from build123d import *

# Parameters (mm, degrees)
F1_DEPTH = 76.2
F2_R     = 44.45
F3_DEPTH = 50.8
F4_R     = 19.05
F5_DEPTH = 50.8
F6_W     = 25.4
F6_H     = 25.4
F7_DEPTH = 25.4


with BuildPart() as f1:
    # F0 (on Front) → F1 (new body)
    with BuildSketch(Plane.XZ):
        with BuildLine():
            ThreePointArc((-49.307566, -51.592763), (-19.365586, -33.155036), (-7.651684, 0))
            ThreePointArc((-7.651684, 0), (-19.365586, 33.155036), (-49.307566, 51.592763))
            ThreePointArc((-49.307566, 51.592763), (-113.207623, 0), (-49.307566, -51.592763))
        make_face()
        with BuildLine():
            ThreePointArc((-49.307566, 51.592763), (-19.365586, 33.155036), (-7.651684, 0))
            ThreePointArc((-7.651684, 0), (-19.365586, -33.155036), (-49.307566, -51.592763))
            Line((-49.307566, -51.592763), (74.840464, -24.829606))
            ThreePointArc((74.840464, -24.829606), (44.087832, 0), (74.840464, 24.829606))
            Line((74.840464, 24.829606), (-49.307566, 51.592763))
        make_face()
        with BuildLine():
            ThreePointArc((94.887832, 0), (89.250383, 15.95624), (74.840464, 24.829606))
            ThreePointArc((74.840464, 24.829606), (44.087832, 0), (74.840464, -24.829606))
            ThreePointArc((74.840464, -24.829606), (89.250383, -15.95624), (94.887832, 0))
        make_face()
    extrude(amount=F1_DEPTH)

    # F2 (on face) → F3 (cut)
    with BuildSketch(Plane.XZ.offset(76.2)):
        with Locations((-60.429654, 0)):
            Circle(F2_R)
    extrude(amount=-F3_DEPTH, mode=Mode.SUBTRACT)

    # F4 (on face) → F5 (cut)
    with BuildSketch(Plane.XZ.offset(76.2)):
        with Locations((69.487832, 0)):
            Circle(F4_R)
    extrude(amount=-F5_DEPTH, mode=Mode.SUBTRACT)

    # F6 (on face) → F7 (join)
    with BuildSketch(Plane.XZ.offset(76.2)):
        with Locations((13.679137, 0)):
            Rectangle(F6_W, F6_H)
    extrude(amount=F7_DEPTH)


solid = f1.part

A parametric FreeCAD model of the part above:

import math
import FreeCAD as App
import Part
import Sketcher

V = App.Vector
Q = App.Units.Quantity


def add_polygon(sketch, points):
    """Adds a closed chain of lines whose ends are joined by coincident constraints."""
    first, n = sketch.GeometryCount, len(points)
    for a, b in zip(points, points[1:] + points[:1]):
        sketch.addGeometry(Part.LineSegment(App.Vector(*a, 0), App.Vector(*b, 0)), False)
    for i in range(n):
        sketch.addConstraint(Sketcher.Constraint("Coincident", first + i, 2, first + (i + 1) % n, 1))

doc = App.newDocument("Part")
body = doc.addObject("PartDesign::Body", "Body")

# Sketch on XZ plane
sketch1 = body.newObject("Sketcher::SketchObject", "Sketch")
sketch1.AttachmentSupport = (doc.getObject("XZ_Plane"), [""])
sketch1.MapMode = "FlatFace"
sketch1.addGeometry([
    Part.ArcOfCircle(Part.Circle(V(-60.429654, 0, 0), V(0, 0, 1), 52.777969), math.radians(77.834658), math.radians(282.165342)),  # 0
    Part.LineSegment(V(-49.307566, -51.592763, 0), V(74.840464, -24.829606, 0)),  # 1
    Part.ArcOfCircle(Part.Circle(V(69.487833, -0.000001, 0), V(0, 0, 1), 25.399999), math.radians(-77.834659), math.radians(0.000002)),  # 2
    Part.ArcOfCircle(Part.Circle(V(69.487833, 0.000001, 0), V(0, 0, 1), 25.399999), math.radians(-0.000002), math.radians(77.834659)),  # 3
    Part.LineSegment(V(74.840464, 24.829606, 0), V(-49.307566, 51.592763, 0)),  # 4
], False)
sketch1.addConstraint([
    Sketcher.Constraint("Tangent", 0, 2, 1, 1),
    Sketcher.Constraint("Tangent", 1, 2, 2, 1),
    Sketcher.Constraint("Tangent", 2, 2, 3, 1),
    Sketcher.Constraint("Tangent", 3, 2, 4, 1),
    Sketcher.Constraint("Tangent", 4, 2, 0, 1),
    Sketcher.Constraint("Equal", 2, 3),
    Sketcher.Constraint("Symmetric", 1, 2, 3, 2, -1),
    Sketcher.Constraint("PointOnObject", 2, 2, -1),
    Sketcher.Constraint("Radius", 2, Q("1 in")),
    Sketcher.Constraint("Distance", 1, Q("5 in")),
    Sketcher.Constraint("Radius", 0, Q("52.777969 mm")),
    Sketcher.Constraint("DistanceX", -1, 1, 2, 2, Q("94.887832 mm")),
])
pad1 = body.newObject("PartDesign::Pad", "Pad")
pad1.Profile = sketch1
pad1.Length = Q("3 in")

# Sketch on XZ plane
sketch2 = body.newObject("Sketcher::SketchObject", "Sketch001")
sketch2.AttachmentSupport = (doc.getObject("XZ_Plane"), [""])
sketch2.MapMode = "FlatFace"
sketch2.AttachmentOffset = App.Placement(V(0, 0, 3 * 25.4), App.Rotation())
sketch2.addGeometry(Part.Circle(V(-60.429654, 0, 0), V(0, 0, 1), 44.45), False)
sketch2.addConstraint([
    Sketcher.Constraint("PointOnObject", 0, 3, -1),
    Sketcher.Constraint("Diameter", 0, Q("3.5 in")),
    Sketcher.Constraint("DistanceX", 0, 3, -1, 1, Q("60.429654 mm")),
])
pocket1 = body.newObject("PartDesign::Pocket", "Pocket")
pocket1.Profile = sketch2
pocket1.Length = Q("2 in")

# Sketch on XZ plane
sketch3 = body.newObject("Sketcher::SketchObject", "Sketch002")
sketch3.AttachmentSupport = (doc.getObject("XZ_Plane"), [""])
sketch3.MapMode = "FlatFace"
sketch3.AttachmentOffset = App.Placement(V(0, 0, 3 * 25.4), App.Rotation())
sketch3.addGeometry(Part.Circle(V(69.487832, 0, 0), V(0, 0, 1), 19.05), False)
sketch3.addConstraint([
    Sketcher.Constraint("PointOnObject", 0, 3, -1),
    Sketcher.Constraint("Diameter", 0, Q("1.5 in")),
    Sketcher.Constraint("DistanceX", -1, 1, 0, 3, Q("69.487832 mm")),
])
pocket2 = body.newObject("PartDesign::Pocket", "Pocket001")
pocket2.Profile = sketch3
pocket2.Length = Q("2 in")

# Sketch on XZ plane
sketch4 = body.newObject("Sketcher::SketchObject", "Sketch003")
sketch4.AttachmentSupport = (doc.getObject("XZ_Plane"), [""])
sketch4.MapMode = "FlatFace"
sketch4.AttachmentOffset = App.Placement(V(0, 0, 3 * 25.4), App.Rotation())
add_polygon(sketch4, [(0.979137, 12.7), (0.979137, -12.7), (26.379137, -12.7), (26.379137, 12.7)])  # lines 0-3
sketch4.addConstraint([
    Sketcher.Constraint("Vertical", 0),
    Sketcher.Constraint("Horizontal", 1),
    Sketcher.Constraint("Vertical", 2),
    Sketcher.Constraint("Horizontal", 3),
    Sketcher.Constraint("Equal", 3, 0),
    Sketcher.Constraint("DistanceX", 1, 1, 1, 2, Q("1 in")),
    Sketcher.Constraint("DistanceY", 0, 2, -1, 1, Q("0.5 in")),
    Sketcher.Constraint("DistanceX", -1, 1, 0, 2, Q("0.979137 mm")),
])
pad2 = body.newObject("PartDesign::Pad", "Pad001")
pad2.Profile = sketch4
pad2.Length = Q("1 in")

doc.recompute()
